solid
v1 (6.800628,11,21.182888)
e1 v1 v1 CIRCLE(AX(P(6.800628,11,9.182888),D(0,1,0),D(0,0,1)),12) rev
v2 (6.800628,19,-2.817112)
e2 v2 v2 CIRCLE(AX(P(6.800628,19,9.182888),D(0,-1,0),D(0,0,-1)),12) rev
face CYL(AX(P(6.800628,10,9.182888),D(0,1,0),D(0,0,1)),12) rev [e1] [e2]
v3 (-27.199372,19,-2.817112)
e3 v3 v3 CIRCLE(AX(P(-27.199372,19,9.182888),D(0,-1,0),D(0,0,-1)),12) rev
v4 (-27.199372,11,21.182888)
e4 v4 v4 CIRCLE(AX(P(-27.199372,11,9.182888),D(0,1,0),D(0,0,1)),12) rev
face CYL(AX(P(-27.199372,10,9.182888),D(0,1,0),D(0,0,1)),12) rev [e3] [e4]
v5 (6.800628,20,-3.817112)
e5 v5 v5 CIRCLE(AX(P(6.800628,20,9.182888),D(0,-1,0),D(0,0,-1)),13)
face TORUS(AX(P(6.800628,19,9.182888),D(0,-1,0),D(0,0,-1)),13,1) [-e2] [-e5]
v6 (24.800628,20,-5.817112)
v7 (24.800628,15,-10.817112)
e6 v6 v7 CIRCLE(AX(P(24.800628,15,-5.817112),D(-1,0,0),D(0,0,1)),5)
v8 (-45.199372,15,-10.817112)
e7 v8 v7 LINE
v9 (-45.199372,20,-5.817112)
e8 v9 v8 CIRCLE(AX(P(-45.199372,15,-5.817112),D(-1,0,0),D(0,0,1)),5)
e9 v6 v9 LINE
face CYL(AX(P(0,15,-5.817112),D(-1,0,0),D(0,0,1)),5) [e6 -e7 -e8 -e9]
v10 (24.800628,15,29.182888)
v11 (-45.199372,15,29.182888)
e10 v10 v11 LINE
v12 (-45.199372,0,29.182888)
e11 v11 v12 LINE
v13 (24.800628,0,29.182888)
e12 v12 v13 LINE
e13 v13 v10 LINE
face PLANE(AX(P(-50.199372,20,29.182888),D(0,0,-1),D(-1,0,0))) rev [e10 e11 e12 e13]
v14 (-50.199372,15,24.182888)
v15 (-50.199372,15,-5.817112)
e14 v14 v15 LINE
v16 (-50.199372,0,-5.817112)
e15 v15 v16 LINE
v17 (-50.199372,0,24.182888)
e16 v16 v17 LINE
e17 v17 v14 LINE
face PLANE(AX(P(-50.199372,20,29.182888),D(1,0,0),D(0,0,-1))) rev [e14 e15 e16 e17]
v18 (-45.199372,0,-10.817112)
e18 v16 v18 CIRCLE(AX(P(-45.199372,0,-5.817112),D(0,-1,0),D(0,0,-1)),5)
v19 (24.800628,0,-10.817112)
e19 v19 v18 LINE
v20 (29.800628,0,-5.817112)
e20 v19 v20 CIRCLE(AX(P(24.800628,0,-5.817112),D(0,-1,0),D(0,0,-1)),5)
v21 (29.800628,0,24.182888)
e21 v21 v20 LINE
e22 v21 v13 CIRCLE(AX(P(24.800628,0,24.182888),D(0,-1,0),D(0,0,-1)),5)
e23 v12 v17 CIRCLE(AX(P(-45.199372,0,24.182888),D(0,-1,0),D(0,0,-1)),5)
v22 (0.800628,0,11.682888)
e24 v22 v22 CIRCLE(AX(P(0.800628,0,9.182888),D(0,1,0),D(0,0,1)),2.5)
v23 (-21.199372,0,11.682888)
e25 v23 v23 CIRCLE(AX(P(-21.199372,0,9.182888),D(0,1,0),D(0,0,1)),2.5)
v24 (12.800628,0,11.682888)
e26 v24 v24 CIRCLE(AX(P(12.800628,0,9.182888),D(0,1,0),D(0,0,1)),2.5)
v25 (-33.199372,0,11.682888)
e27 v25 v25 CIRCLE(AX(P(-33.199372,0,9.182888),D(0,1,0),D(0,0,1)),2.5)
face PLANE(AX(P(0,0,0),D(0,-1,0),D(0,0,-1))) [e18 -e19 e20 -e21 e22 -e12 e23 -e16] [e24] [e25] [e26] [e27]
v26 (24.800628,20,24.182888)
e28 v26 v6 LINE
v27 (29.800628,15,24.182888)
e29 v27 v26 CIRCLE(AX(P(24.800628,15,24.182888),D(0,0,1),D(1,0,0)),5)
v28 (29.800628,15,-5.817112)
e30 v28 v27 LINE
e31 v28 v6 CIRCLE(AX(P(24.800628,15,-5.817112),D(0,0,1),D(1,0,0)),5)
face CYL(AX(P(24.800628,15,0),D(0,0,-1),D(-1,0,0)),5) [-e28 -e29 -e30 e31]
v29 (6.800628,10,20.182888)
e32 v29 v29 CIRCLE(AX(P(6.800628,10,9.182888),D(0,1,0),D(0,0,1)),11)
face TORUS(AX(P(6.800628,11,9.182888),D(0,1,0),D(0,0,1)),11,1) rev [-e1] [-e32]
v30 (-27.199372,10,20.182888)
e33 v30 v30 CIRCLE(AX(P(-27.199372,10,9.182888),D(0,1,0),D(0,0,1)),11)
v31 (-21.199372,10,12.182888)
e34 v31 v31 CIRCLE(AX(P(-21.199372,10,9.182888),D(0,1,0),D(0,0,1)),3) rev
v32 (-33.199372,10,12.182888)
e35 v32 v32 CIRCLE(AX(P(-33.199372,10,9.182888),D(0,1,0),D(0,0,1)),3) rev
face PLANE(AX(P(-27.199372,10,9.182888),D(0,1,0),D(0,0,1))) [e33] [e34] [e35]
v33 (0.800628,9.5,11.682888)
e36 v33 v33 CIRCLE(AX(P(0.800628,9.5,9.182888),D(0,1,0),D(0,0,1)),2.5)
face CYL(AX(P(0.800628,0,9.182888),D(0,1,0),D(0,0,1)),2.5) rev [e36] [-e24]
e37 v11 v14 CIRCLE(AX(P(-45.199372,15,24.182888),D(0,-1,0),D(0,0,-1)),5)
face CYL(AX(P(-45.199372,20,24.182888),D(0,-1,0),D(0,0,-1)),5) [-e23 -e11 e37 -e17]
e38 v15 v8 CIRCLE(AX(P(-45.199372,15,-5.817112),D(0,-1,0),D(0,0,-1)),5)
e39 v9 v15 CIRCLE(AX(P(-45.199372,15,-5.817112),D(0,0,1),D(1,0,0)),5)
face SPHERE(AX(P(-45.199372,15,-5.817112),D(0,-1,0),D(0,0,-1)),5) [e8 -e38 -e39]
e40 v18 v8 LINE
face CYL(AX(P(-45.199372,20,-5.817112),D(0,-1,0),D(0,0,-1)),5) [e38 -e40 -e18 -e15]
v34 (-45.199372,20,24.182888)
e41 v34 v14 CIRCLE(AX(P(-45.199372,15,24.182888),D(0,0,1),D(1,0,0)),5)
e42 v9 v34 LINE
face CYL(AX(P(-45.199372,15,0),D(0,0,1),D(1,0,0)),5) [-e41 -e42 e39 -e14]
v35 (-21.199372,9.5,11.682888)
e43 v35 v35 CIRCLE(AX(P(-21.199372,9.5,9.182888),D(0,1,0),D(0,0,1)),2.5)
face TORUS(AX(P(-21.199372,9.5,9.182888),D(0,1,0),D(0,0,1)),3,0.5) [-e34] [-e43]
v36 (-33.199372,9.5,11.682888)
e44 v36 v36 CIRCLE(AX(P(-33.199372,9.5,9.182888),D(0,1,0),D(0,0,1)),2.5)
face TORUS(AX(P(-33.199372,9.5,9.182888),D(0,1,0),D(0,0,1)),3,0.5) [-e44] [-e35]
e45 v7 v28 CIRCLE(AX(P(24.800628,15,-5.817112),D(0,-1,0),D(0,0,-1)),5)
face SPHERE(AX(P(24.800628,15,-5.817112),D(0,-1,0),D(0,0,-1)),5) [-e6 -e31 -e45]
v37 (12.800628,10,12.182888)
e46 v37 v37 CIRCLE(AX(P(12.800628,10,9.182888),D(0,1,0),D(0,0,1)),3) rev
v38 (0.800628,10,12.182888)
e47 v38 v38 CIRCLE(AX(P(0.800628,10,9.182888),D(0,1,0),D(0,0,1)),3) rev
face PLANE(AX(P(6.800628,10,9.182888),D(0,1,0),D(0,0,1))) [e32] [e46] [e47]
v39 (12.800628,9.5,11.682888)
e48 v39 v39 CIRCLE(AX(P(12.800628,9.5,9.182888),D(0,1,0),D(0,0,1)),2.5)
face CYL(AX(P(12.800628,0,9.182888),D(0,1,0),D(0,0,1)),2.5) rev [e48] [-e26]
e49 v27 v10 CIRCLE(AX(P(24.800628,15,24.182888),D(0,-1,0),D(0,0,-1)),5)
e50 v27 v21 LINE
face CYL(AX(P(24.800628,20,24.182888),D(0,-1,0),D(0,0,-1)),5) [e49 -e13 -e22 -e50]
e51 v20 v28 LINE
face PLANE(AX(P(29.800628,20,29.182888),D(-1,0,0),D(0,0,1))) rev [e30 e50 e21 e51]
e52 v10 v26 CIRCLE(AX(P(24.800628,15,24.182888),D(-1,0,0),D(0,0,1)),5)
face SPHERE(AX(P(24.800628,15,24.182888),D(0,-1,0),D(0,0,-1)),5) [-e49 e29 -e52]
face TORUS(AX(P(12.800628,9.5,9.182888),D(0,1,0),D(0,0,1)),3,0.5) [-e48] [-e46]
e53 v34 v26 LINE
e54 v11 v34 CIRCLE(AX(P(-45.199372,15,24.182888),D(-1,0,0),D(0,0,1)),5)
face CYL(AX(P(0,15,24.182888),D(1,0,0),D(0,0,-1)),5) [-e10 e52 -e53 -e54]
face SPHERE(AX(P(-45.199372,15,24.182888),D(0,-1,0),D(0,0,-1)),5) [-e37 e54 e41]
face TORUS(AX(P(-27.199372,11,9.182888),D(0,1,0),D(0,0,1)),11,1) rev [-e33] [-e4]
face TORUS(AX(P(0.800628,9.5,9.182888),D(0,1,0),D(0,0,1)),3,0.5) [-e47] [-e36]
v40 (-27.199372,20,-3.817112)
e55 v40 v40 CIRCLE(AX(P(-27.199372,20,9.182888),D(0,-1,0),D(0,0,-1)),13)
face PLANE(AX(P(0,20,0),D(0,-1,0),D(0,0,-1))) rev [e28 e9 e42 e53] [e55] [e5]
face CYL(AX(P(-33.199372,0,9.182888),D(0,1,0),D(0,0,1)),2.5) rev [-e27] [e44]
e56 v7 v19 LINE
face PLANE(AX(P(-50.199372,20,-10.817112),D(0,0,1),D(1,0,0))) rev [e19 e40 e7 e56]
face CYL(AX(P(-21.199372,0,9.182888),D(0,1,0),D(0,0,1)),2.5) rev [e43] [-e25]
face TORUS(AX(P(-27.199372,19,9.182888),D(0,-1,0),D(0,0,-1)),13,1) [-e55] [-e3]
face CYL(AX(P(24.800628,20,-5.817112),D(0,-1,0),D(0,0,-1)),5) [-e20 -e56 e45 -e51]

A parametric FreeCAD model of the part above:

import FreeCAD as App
import Part
import Sketcher

V = App.Vector
Q = App.Units.Quantity


def edges_at(feature, points):
    """Names of the edges that pass closest to the given points."""
    edges = feature.Shape.Edges
    near = lambda p: min(range(len(edges)), key=lambda i: edges[i].distToShape(Part.Vertex(*p))[0])
    return sorted({f"Edge{near(p) + 1}" for p in points})


def add_polygon(sketch, points):
    """Adds a closed chain of lines whose ends are joined by coincident constraints."""
    first, n = sketch.GeometryCount, len(points)
    for a, b in zip(points, points[1:] + points[:1]):
        sketch.addGeometry(Part.LineSegment(App.Vector(*a, 0), App.Vector(*b, 0)), False)
    for i in range(n):
        sketch.addConstraint(Sketcher.Constraint("Coincident", first + i, 2, first + (i + 1) % n, 1))

doc = App.newDocument("Part")
body = doc.addObject("PartDesign::Body", "Body")

sketch1 = body.newObject("Sketcher::SketchObject", "Sketch")
sketch1.AttachmentSupport = (doc.getObject("XZ_Plane"), [""])
sketch1.MapMode = "FlatFace"
add_polygon(sketch1, [(-50, -11), (-50, 29), (30, 29), (30, -11)])
sketch1.addConstraint([
    Sketcher.Constraint("Vertical", 0),
    Sketcher.Constraint("Horizontal", 1),
    Sketcher.Constraint("Vertical", 2),
    Sketcher.Constraint("Horizontal", 3),
    Sketcher.Constraint("DistanceX", 1, 1, 1, 2, Q("80 mm")),
    Sketcher.Constraint("DistanceY", 0, 1, 0, 2, Q("40 mm")),
    Sketcher.Constraint("DistanceX", 0, 2, -1, 1, Q("50.199372 mm")),
    Sketcher.Constraint("DistanceY", -1, 1, 0, 2, Q("29.182888 mm")),
])
pad1 = body.newObject("PartDesign::Pad", "Pad")
pad1.Profile = sketch1
pad1.Length = 20
pad1.Reversed = True

sketch2 = body.newObject("Sketcher::SketchObject", "Sketch001")
sketch2.AttachmentSupport = (doc.getObject("XZ_Plane"), [""])
sketch2.MapMode = "FlatFace"
sketch2.AttachmentOffset = App.Placement(V(0, 0, -20), App.Rotation())
sketch2.addGeometry([
    Part.Circle(V(-27, 9, 0), V(0, 0, 1), 12),
    Part.Circle(V(7, 9, 0), V(0, 0, 1), 12),
], False)
sketch2.addConstraint([
    Sketcher.Constraint("Equal", 0, 1),
    Sketcher.Constraint("Horizontal", 0, 3, 1, 3),
    Sketcher.Constraint("Diameter", 0, Q("24 mm")),
    Sketcher.Constraint("DistanceX", 0, 3, 1, 3, Q("34 mm")),
    Sketcher.Constraint("DistanceX", 0, 3, -1, 1, Q("27.199372 mm")),
    Sketcher.Constraint("DistanceY", -1, 1, 0, 3, Q("9.182888 mm")),
])
pocket1 = body.newObject("PartDesign::Pocket", "Pocket")
pocket1.Profile = sketch2
pocket1.Length = 10
pocket1.Reversed = True

sketch3 = body.newObject("Sketcher::SketchObject", "Sketch002")
sketch3.AttachmentSupport = (doc.getObject("XZ_Plane"), [""])
sketch3.MapMode = "FlatFace"
sketch3.AttachmentOffset = App.Placement(V(0, 0, -10), App.Rotation())
sketch3.addGeometry([
    Part.Circle(V(-33.2, 9.2, 0), V(0, 0, 1), 2.5),
    Part.Circle(V(-21.2, 9.2, 0), V(0, 0, 1), 2.5),
    Part.Circle(V(0.8, 9.2, 0), V(0, 0, 1), 2.5),
    Part.Circle(V(12.8, 9.2, 0), V(0, 0, 1), 2.5),
], False)
sketch3.addConstraint([
    Sketcher.Constraint("Equal", 0, 1),
    Sketcher.Constraint("Equal", 1, 2),
    Sketcher.Constraint("Equal", 2, 3),
    Sketcher.Constraint("Horizontal", 0, 3, 1, 3),
    Sketcher.Constraint("Horizontal", 1, 3, 2, 3),
    Sketcher.Constraint("Horizontal", 2, 3, 3, 3),
    Sketcher.Constraint("Diameter", 0, Q("5 mm")),
    Sketcher.Constraint("DistanceX", 0, 3, 1, 3, Q("12 mm")),
    Sketcher.Constraint("DistanceX", 1, 3, 2, 3, Q("22 mm")),
    Sketcher.Constraint("DistanceX", 2, 3, 3, 3, Q("12 mm")),
    Sketcher.Constraint("DistanceX", 0, 3, -1, 1, Q("33.199372 mm")),
    Sketcher.Constraint("DistanceY", -1, 1, 0, 3, Q("9.182888 mm")),
])
pocket2 = body.newObject("PartDesign::Pocket", "Pocket001")
pocket2.Profile = sketch3
pocket2.Type = "ThroughAll"
pocket2.Reversed = True
doc.recompute()

fillet = body.newObject("PartDesign::Fillet", "Fillet")
fillet.Base = (pocket2, edges_at(pocket2, [
    (-50.199, 10, -10.817),
    (29.801, 10, -10.817),
    (29.801, 10, 29.183),
    (-50.199, 10, 29.183),
]))
fillet.Radius = 5
doc.recompute()

fillet2 = body.newObject("PartDesign::Fillet", "Fillet001")
fillet2.Base = (fillet, edges_at(fillet, [
    (-50.199, 20, 9.183),
    (-10.199, 20, -10.817),
    (-10.199, 20, 29.183),
    (29.801, 20, 9.183),
    (-48.735, 20, 27.718),
    (28.336, 20, 27.718),
    (28.336, 20, -9.353),
    (-48.735, 20, -9.353),
]))
fillet2.Radius = 5
doc.recompute()

fillet3 = body.newObject("PartDesign::Fillet", "Fillet002")
fillet3.Base = (fillet2, edges_at(fillet2, [
    (6.801, 10, -2.817),
    (6.801, 20, -2.817),
    (-27.199, 10, -2.817),
    (-27.199, 20, -2.817),
]))
fillet3.Radius = 1
doc.recompute()

fillet4 = body.newObject("PartDesign::Fillet", "Fillet003")
fillet4.Base = (fillet3, edges_at(fillet3, [
    (-33.199, 10, 6.683),
    (-21.199, 10, 6.683),
    (0.801, 10, 6.683),
    (12.801, 10, 6.683),
]))
fillet4.Radius = 0.5

doc.recompute()
